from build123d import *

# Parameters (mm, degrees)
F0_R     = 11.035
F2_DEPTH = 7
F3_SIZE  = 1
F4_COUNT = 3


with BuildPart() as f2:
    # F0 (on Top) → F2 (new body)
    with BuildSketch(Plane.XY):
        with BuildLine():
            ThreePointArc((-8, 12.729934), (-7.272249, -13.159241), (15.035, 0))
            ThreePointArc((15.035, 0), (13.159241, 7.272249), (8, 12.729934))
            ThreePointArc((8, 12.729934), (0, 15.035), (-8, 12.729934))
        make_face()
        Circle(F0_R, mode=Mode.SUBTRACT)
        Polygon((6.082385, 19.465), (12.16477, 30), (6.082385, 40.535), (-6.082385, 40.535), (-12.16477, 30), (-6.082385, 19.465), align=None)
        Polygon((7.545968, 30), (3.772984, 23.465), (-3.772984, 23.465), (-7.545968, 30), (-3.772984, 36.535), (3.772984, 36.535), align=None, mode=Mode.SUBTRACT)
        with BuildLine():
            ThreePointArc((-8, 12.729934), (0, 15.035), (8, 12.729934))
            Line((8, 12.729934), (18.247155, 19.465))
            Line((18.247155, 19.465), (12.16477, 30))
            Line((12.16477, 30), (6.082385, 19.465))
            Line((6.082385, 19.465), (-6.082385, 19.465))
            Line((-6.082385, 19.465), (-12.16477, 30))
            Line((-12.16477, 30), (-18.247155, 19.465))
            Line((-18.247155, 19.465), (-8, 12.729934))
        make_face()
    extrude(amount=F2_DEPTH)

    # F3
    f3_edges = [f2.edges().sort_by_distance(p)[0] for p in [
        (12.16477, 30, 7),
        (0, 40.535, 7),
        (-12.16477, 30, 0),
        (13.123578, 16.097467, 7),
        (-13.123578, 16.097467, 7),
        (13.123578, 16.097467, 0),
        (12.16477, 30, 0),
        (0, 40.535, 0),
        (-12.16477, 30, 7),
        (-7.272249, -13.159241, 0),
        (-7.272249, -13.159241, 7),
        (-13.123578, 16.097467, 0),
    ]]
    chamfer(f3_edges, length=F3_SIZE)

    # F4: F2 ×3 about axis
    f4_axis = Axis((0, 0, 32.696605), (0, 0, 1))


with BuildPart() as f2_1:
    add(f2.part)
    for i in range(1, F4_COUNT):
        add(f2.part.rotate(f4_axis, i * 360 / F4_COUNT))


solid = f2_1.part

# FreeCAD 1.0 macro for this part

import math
import FreeCAD as App
import Part
import Sketcher
from FreeCAD import Vector
Q = App.Units.Quantity


def edges_at(feature, points):
    """Names of the edges that pass closest to the given points."""
    edges = feature.Shape.Edges
    near = lambda p: min(range(len(edges)), key=lambda i: edges[i].distToShape(Part.Vertex(*p))[0])
    return sorted({f"Edge{near(p) + 1}" for p in points})


def add_polygon(sketch, points):
    """Adds a closed chain of lines whose ends are joined by coincident constraints."""
    first, n = sketch.GeometryCount, len(points)
    for a, b in zip(points, points[1:] + points[:1]):
        sketch.addGeometry(Part.LineSegment(App.Vector(*a, 0), App.Vector(*b, 0)), False)
    for i in range(n):
        sketch.addConstraint(Sketcher.Constraint("Coincident", first + i, 2, first + (i + 1) % n, 1))

doc = App.newDocument("Part")
body = doc.addObject("PartDesign::Body", "Body")

# Sketch on XY plane
sketch1 = body.newObject("Sketcher::SketchObject", "Sketch")
sketch1.AttachmentSupport = (doc.getObject("XY_Plane"), [""])
sketch1.MapMode = "FlatFace"
sketch1.addGeometry(Part.LineSegment(Vector(-18, 19, 0), Vector(-8, 13, 0)), False)  # 0
sketch1.addGeometry(Part.ArcOfCircle(Part.Circle(Vector(0, 0, 0), Vector(0, 0, 1), 15), math.radians(122), math.radians(360)), False)  # 1
sketch1.addGeometry(Part.ArcOfCircle(Part.Circle(Vector(0, 0, 0), Vector(0, 0, 1), 15), math.radians(0), math.radians(58)), False)  # 2
sketch1.addGeometry(Part.LineSegment(Vector(8, 13, 0), Vector(18, 19, 0)), False)  # 3
sketch1.addGeometry(Part.LineSegment(Vector(18, 19, 0), Vector(6, 41, 0)), False)  # 4
sketch1.addGeometry(Part.LineSegment(Vector(6, 41, 0), Vector(-6, 41, 0)), False)  # 5
sketch1.addGeometry(Part.LineSegment(Vector(-6, 41, 0), Vector(-18, 19, 0)), False)  # 6
sketch1.addGeometry(Part.Circle(Vector(0, 0, 0), Vector(0, 0, 1), 11), False)  # 7
add_polygon(sketch1, [(4, 37), (8, 30), (4, 23), (-4, 23), (-8, 30), (-4, 37)])  # lines 8-13
sketch1.addConstraint([
    Sketcher.Constraint("Coincident", 0, 2, 1, 1),
    Sketcher.Constraint("Tangent", 1, 2, 2, 1),
    Sketcher.Constraint("Coincident", 2, 2, 3, 1),
    Sketcher.Constraint("Coincident", 3, 2, 4, 1),
    Sketcher.Constraint("Coincident", 4, 2, 5, 1),
    Sketcher.Constraint("Coincident", 5, 2, 6, 1),
    Sketcher.Constraint("Coincident", 6, 2, 0, 1),
    Sketcher.Constraint("Horizontal", 5),
    Sketcher.Constraint("Horizontal", 10),
    Sketcher.Constraint("Horizontal", 13),
    Sketcher.Constraint("Coincident", 1, 3, -1, 1),
    Sketcher.Constraint("Coincident", 7, 3, -1, 1),
    Sketcher.Constraint("Equal", 1, 2),
    Sketcher.Constraint("Symmetric", 3, 2, 6, 2, -2),
    Sketcher.Constraint("Symmetric", 8, 2, 11, 2, -2),
    Sketcher.Constraint("PointOnObject", 1, 2, -1),
    Sketcher.Constraint("Parallel", 4, 8),
    Sketcher.Constraint("Parallel", 6, 9),
    Sketcher.Constraint("Parallel", 8, 11),
    Sketcher.Constraint("Parallel", 9, 12),
    Sketcher.Constraint("Horizontal", 0, 2, 2, 2),
    Sketcher.Constraint("Vertical", 10, 2, 12, 2),
    Sketcher.Constraint("Vertical", 9, 2, 13, 2),
    Sketcher.Constraint("Diameter", 7, Q("22.07 mm")),
    Sketcher.Constraint("Angle", 4, Q("120 deg")),
    Sketcher.Constraint("DistanceX", 0, 2, -1, 1, Q("8 mm")),
    Sketcher.Constraint("DistanceY", -1, 1, 8, 2, Q("30 mm")),
    Sketcher.Constraint("Radius", 1, Q("15.035 mm")),
    Sketcher.Constraint("DistanceY", 3, 2, 9, 2, Q("4 mm")),
    Sketcher.Constraint("DistanceY", 12, 2, 5, 2, Q("4 mm")),
    Sketcher.Constraint("DistanceY", 3, 2, 4, 2, Q("21.07 mm")),
    Sketcher.Constraint("DistanceX", 5, 2, 5, 1, Q("12.16477 mm")),
    Sketcher.Constraint("DistanceX", 10, 2, 10, 1, Q("7.545968 mm")),
])
pad1 = body.newObject("PartDesign::Pad", "Pad")
pad1.Profile = sketch1
pad1.Length = 7
doc.recompute()

chamfer = body.newObject("PartDesign::Chamfer", "Chamfer")
chamfer.Base = (pad1, edges_at(pad1, [
    (12.165, 30, 7),
    (0, 40.535, 7),
    (-12.165, 30, 0),
    (13.124, 16.097, 7),
    (-13.124, 16.097, 7),
    (13.124, 16.097, 0),
    (12.165, 30, 0),
    (0, 40.535, 0),
    (-12.165, 30, 7),
    (-7.272, -13.159, 0),
    (-7.272, -13.159, 7),
    (-13.124, 16.097, 0),
]))
chamfer.Size = 1
body2 = doc.addObject("PartDesign::Body", "Body001")
doc.recompute()

body2.BaseFeature = body
doc.recompute()

body3 = doc.addObject("PartDesign::Body", "Body002")
body3.BaseFeature = body
body3.Placement = App.Placement(Vector(0, 0, 0), App.Rotation(Vector(0, 0, 1), 120))
boolean = body2.newObject("PartDesign::Boolean", "Boolean")
boolean.Type = "Fuse"
boolean.addObjects([body3])
doc.recompute()

body.Placement = App.Placement(Vector(0, 0, 0), App.Rotation(Vector(0, 0, 1), 240))
boolean2 = body2.newObject("PartDesign::Boolean", "Boolean001")
boolean2.Type = "Fuse"
boolean2.addObjects([body])

doc.recompute()
